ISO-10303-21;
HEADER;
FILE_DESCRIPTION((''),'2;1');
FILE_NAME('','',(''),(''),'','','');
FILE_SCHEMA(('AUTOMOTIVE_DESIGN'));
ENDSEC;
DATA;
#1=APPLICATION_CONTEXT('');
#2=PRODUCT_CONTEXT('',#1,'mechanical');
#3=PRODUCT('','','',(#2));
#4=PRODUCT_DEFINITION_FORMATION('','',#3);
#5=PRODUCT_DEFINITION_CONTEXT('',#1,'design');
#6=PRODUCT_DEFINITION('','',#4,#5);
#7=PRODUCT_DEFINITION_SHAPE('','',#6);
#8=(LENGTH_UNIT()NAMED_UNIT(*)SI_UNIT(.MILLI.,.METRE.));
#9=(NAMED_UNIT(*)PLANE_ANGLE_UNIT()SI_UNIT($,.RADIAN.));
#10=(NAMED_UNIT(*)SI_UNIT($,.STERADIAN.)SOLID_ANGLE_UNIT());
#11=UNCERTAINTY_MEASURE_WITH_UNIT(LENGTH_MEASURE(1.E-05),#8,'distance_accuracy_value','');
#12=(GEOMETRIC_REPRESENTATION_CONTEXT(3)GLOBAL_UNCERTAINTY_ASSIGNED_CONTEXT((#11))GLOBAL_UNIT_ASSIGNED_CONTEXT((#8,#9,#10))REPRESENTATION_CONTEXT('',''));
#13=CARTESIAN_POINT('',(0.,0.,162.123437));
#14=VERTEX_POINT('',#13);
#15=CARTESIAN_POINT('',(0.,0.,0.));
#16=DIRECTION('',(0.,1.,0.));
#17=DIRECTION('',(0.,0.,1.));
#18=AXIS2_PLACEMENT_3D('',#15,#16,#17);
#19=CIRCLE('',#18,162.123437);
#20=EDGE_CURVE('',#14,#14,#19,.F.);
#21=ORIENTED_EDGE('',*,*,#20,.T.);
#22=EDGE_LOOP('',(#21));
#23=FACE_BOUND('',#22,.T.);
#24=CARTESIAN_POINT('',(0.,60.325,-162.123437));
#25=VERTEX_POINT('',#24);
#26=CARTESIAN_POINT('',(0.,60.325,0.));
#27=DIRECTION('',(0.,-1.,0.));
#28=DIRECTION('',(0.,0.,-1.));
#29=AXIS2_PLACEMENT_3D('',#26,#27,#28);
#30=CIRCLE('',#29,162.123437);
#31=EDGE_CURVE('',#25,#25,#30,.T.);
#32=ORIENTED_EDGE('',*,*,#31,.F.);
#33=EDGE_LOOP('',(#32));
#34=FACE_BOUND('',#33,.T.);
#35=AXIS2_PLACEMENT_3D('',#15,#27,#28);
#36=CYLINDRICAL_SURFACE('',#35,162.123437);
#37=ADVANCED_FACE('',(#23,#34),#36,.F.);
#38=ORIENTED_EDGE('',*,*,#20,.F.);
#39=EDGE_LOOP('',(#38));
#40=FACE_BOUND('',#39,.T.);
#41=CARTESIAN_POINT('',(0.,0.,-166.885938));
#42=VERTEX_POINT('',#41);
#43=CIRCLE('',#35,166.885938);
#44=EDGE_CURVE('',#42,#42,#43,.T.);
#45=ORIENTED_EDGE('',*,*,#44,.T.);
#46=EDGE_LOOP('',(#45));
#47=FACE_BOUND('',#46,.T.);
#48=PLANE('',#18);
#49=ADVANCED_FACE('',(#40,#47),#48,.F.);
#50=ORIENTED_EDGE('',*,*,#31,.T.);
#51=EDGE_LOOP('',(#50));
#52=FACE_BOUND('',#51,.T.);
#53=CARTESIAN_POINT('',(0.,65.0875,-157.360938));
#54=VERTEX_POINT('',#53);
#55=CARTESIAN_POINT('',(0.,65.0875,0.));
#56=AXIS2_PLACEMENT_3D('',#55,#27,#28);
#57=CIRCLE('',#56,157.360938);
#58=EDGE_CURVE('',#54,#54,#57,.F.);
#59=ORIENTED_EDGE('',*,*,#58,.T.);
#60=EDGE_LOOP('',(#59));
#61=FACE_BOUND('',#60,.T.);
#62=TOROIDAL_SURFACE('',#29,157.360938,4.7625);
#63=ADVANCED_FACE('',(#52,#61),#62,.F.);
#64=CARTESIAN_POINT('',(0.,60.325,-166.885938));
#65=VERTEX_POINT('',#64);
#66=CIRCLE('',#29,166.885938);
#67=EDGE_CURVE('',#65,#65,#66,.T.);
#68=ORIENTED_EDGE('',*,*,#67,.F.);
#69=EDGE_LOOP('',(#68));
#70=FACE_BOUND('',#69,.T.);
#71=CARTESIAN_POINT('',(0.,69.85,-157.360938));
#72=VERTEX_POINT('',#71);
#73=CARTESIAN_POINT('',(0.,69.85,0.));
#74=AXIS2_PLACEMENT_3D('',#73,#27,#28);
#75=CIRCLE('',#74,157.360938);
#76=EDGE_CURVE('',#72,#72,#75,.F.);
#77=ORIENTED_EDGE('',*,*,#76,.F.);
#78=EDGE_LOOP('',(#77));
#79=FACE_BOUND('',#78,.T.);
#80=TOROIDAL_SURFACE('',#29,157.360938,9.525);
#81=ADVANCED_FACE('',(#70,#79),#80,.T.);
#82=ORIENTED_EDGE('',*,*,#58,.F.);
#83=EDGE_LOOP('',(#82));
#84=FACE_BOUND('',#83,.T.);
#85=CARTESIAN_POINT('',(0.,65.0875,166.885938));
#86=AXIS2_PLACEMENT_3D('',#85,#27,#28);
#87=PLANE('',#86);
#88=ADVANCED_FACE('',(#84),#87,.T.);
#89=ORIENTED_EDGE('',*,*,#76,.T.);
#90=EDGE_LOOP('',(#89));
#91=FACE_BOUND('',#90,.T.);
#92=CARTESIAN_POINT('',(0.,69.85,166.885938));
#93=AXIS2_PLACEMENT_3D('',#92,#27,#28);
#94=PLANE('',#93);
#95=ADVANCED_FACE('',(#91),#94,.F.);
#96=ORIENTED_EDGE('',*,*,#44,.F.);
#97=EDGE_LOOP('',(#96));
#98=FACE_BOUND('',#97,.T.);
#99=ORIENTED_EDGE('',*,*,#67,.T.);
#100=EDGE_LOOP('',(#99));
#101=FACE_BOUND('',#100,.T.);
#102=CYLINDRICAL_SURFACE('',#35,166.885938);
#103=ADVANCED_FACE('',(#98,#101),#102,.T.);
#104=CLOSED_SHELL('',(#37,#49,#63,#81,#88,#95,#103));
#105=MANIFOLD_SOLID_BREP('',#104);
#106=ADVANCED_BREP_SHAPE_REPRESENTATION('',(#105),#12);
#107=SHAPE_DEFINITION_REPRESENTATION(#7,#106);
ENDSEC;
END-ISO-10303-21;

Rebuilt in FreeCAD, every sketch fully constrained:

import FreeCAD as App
import Part
import Sketcher
from FreeCAD import Vector
Q = App.Units.Quantity


def edges_at(feature, points):
    """Names of the edges that pass closest to the given points."""
    edges = feature.Shape.Edges
    near = lambda p: min(range(len(edges)), key=lambda i: edges[i].distToShape(Part.Vertex(*p))[0])
    return sorted({f"Edge{near(p) + 1}" for p in points})


def faces_at(feature, points):
    """Names of the faces that lie closest to the given points."""
    faces = feature.Shape.Faces
    near = lambda p: min(range(len(faces)), key=lambda i: faces[i].distToShape(Part.Vertex(*p))[0])
    return sorted({f"Face{near(p) + 1}" for p in points})

doc = App.newDocument("Part")
body = doc.addObject("PartDesign::Body", "Body")

# Sketch on YZ plane
sketch1 = body.newObject("Sketcher::SketchObject", "Sketch")
sketch1.AttachmentSupport = (doc.getObject("YZ_Plane"), [""])
sketch1.MapMode = "FlatFace"
sketch1.addGeometry(Part.LineSegment(Vector(70, 167, 0), Vector(0, 167, 0)), False)
sketch1.addGeometry(Part.LineSegment(Vector(0, 167, 0), Vector(0, 0, 0)), False)
sketch1.addGeometry(Part.LineSegment(Vector(0, 0, 0), Vector(70, 0, 0)), False)
sketch1.addGeometry(Part.LineSegment(Vector(70, 0, 0), Vector(70, 167, 0)), False)
sketch1.addConstraint(Sketcher.Constraint("Coincident", 0, 2, 1, 1))
sketch1.addConstraint(Sketcher.Constraint("Coincident", 1, 2, 2, 1))
sketch1.addConstraint(Sketcher.Constraint("Coincident", 2, 2, 3, 1))
sketch1.addConstraint(Sketcher.Constraint("Coincident", 3, 2, 0, 1))
sketch1.addConstraint(Sketcher.Constraint("Horizontal", 0))
sketch1.addConstraint(Sketcher.Constraint("Vertical", 1))
sketch1.addConstraint(Sketcher.Constraint("Horizontal", 2))
sketch1.addConstraint(Sketcher.Constraint("Vertical", 3))
sketch1.addConstraint(Sketcher.Constraint("Coincident", 1, 2, -1, 1))
sketch1.addConstraint(Sketcher.Constraint("DistanceX", 0, 2, 0, 1, Q("2.75 in")))
sketch1.addConstraint(Sketcher.Constraint("DistanceY", 1, 2, 1, 1, Q("166.885938 mm")))
revolution = body.newObject("PartDesign::Revolution", "Revolution")
revolution.Profile = sketch1
revolution.ReferenceAxis = (sketch1, ["H_Axis"])
revolution.Angle = 360
doc.recompute()

fillet = body.newObject("PartDesign::Fillet", "Fillet")
fillet.Base = (revolution, edges_at(revolution, [(0, 69.85, 166.886)]))
fillet.Radius = Q("0.375 in")
doc.recompute()

thickness = body.newObject("PartDesign::Thickness", "Thickness")
thickness.Base = (fillet, faces_at(fillet, [(0, 0, 0)]))
thickness.Value = Q("0.1875 in")
thickness.Reversed = True
thickness.Join = "Intersection"

doc.recompute()
